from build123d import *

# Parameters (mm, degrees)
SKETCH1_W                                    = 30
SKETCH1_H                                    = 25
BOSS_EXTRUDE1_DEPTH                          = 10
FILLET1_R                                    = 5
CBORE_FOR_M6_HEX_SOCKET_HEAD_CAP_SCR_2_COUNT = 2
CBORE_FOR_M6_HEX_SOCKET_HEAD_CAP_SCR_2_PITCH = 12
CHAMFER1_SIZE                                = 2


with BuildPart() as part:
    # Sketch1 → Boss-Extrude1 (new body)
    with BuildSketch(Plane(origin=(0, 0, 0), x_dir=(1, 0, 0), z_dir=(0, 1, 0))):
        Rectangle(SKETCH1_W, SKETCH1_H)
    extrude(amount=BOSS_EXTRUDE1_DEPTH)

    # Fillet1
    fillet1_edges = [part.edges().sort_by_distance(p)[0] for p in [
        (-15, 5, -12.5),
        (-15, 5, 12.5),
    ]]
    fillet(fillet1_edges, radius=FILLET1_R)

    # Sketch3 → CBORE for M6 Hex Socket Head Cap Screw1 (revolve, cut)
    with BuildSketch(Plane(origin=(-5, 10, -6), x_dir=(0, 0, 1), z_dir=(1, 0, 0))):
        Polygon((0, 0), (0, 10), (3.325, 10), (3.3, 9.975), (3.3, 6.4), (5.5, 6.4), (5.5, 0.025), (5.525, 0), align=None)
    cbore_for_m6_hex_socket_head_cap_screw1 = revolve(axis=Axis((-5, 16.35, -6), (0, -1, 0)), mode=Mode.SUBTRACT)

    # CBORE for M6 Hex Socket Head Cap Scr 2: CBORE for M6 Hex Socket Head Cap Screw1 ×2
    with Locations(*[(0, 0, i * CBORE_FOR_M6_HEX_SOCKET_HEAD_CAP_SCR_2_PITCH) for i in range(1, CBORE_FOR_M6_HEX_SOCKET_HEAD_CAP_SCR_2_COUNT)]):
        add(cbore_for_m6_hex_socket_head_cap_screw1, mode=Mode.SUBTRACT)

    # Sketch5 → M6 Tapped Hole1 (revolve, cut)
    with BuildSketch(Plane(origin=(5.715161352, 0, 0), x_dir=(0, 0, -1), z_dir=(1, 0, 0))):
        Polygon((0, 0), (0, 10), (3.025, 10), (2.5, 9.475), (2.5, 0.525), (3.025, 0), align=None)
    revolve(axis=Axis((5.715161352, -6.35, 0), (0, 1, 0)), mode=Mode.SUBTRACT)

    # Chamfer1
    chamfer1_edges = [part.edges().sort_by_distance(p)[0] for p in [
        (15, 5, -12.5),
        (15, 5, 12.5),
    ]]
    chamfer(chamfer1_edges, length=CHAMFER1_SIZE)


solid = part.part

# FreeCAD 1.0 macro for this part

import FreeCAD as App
import Part
import Sketcher

V = App.Vector
Q = App.Units.Quantity


def edges_at(feature, points):
    """Names of the edges that pass closest to the given points."""
    edges = feature.Shape.Edges
    near = lambda p: min(range(len(edges)), key=lambda i: edges[i].distToShape(Part.Vertex(*p))[0])
    return sorted({f"Edge{near(p) + 1}" for p in points})


def add_polygon(sketch, points):
    """Adds a closed chain of lines whose ends are joined by coincident constraints."""
    first, n = sketch.GeometryCount, len(points)
    for a, b in zip(points, points[1:] + points[:1]):
        sketch.addGeometry(Part.LineSegment(App.Vector(*a, 0), App.Vector(*b, 0)), False)
    for i in range(n):
        sketch.addConstraint(Sketcher.Constraint("Coincident", first + i, 2, first + (i + 1) % n, 1))

doc = App.newDocument("Part")
body = doc.addObject("PartDesign::Body", "Body")

# Sketch on XZ plane
sketch1 = doc.addObject("Sketcher::SketchObject", "Sketch")
body.addObject(sketch1)
sketch1.AttachmentSupport = (doc.XZ_Plane, [""])
sketch1.MapMode = "FlatFace"
add_polygon(sketch1, [(-15, -12.5), (-15, 12.5), (15, 12.5), (15, -12.5)])  # lines 0-3
sketch1.addConstraint([
    Sketcher.Constraint("Vertical", 0),
    Sketcher.Constraint("Horizontal", 1),
    Sketcher.Constraint("Vertical", 2),
    Sketcher.Constraint("Horizontal", 3),
    Sketcher.Constraint("Symmetric", 0, 2, 2, 2, -1, 1),
    Sketcher.Constraint("DistanceX", 1, 1, 1, 2, 30.0),
    Sketcher.Constraint("DistanceY", 0, 1, 0, 2, 25.0),
])
pad1 = doc.addObject("PartDesign::Pad", "Pad")
body.addObject(pad1)
pad1.Profile = sketch1
pad1.Length = 10
pad1.Reversed = True
doc.recompute()

fillet = doc.addObject("PartDesign::Fillet", "Fillet")
body.addObject(fillet)
fillet.Base = (pad1, edges_at(pad1, [(-15, 5, -12.5), (-15, 5, 12.5)]))
fillet.Radius = 5

# Sketch on YZ plane
sketch2 = doc.addObject("Sketcher::SketchObject", "Sketch001")
body.addObject(sketch2)
sketch2.AttachmentSupport = (doc.YZ_Plane, [""])
sketch2.MapMode = "FlatFace"
sketch2.AttachmentOffset = App.Placement(V(0, 0, -5), App.Rotation())
add_polygon(sketch2, [(0, -6), (10, -6), (10, -0.475), (9.975, -0.5), (3.6, -0.5), (3.6, -2.7), (0.025, -2.7), (0, -2.675)])  # lines 0-7
sketch2.addGeometry(Part.LineSegment(V(10, -6, 0), V(0, -6, 0)), True)  # axis
sketch2.addConstraint([
    Sketcher.Constraint("Horizontal", 0),
    Sketcher.Constraint("Vertical", 1),
    Sketcher.Constraint("Horizontal", 3),
    Sketcher.Constraint("Vertical", 4),
    Sketcher.Constraint("Horizontal", 5),
    Sketcher.Constraint("Vertical", 7),
    Sketcher.Constraint("Horizontal", 8),
    Sketcher.Constraint("Coincident", 8, 1, 0, 2),
    Sketcher.Constraint("PointOnObject", 6, 2, -2),
    Sketcher.Constraint("PointOnObject", 8, 2, -2),
    Sketcher.Constraint("Perpendicular", 2, 6),
    Sketcher.Constraint("Equal", 2, 6),
    Sketcher.Constraint("DistanceX", 0, 1, 0, 2, 10.0),
    Sketcher.Constraint("Angle", 2, Q("-135 deg")),
    Sketcher.Constraint("DistanceY", 4, 2, 4, 1, 2.2),
    Sketcher.Constraint("DistanceY", 0, 2, -1, 1, 6.0),
    Sketcher.Constraint("DistanceY", 2, 2, -1, 1, 0.5),
    Sketcher.Constraint("DistanceX", -1, 1, 3, 2, 3.6),
    Sketcher.Constraint("DistanceX", 3, 2, 3, 1, 6.375),
])
groove = doc.addObject("PartDesign::Groove", "Groove")
body.addObject(groove)
groove.Profile = sketch2
groove.ReferenceAxis = (sketch2, ["Axis0"])
groove.Angle = 360
doc.recompute()

linearpattern = doc.addObject("PartDesign::LinearPattern", "LinearPattern")
body.addObject(linearpattern)
linearpattern.Originals = [groove]
linearpattern.Direction = (doc.Z_Axis, [""])
linearpattern.Mode = "offset"
linearpattern.Offset = 12
linearpattern.Occurrences = 2
body.Tip = linearpattern

# Sketch on YZ plane
sketch3 = doc.addObject("Sketcher::SketchObject", "Sketch002")
body.addObject(sketch3)
sketch3.AttachmentSupport = (doc.YZ_Plane, [""])
sketch3.MapMode = "FlatFace"
sketch3.AttachmentOffset = App.Placement(V(0, 0, 5.715161), App.Rotation())
add_polygon(sketch3, [(10, 0), (0, 0), (0, -3.025), (0.525, -2.5), (9.475, -2.5), (10, -3.025)])  # lines 0-5
sketch3.addConstraint([
    Sketcher.Constraint("Horizontal", 0),
    Sketcher.Constraint("Vertical", 1),
    Sketcher.Constraint("Horizontal", 3),
    Sketcher.Constraint("Vertical", 5),
    Sketcher.Constraint("Coincident", 0, 2, -1, 1),
    Sketcher.Constraint("Perpendicular", 2, 4),
    Sketcher.Constraint("Horizontal", 1, 2, 4, 2),
    Sketcher.Constraint("Equal", 2, 4),
    Sketcher.Constraint("DistanceX", 0, 2, 0, 1, 10.0),
    Sketcher.Constraint("DistanceX", 3, 1, 3, 2, 8.95),
    Sketcher.Constraint("DistanceY", 2, 2, -1, 1, 2.5),
])
groove2 = doc.addObject("PartDesign::Groove", "Groove001")
body.addObject(groove2)
groove2.Profile = sketch3
groove2.ReferenceAxis = (sketch3, ["H_Axis"])
groove2.Angle = 360
doc.recompute()

chamfer = doc.addObject("PartDesign::Chamfer", "Chamfer")
body.addObject(chamfer)
chamfer.Base = (groove2, edges_at(groove2, [(15, 5, -12.5), (15, 5, 12.5)]))
chamfer.Size = 2

doc.recompute()
